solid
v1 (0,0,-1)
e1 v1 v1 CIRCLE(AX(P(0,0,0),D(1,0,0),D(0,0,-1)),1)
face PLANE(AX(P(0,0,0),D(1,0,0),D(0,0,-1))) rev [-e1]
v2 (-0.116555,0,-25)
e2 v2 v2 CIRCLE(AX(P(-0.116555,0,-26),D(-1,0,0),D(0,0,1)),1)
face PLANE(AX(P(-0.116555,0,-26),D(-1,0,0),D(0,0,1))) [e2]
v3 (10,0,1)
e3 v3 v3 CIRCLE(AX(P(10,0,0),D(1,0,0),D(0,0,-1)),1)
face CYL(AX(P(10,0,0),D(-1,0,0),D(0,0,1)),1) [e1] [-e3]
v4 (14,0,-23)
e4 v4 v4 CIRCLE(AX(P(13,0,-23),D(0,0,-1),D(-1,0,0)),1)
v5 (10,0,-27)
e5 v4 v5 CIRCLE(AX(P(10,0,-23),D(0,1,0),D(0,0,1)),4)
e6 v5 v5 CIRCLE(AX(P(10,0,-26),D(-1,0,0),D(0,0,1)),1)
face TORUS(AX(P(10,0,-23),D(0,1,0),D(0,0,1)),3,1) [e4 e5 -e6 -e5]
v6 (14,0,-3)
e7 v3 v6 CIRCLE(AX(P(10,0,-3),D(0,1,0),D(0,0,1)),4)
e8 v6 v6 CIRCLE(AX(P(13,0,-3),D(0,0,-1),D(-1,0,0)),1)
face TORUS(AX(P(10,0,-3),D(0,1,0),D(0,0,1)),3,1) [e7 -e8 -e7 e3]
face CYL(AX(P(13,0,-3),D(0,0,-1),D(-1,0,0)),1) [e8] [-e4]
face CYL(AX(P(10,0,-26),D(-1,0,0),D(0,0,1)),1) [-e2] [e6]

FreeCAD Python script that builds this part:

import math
import FreeCAD as App
import Part
import Sketcher
Q = App.Units.Quantity

doc = App.newDocument("Part")
params = doc.addObject("Spreadsheet::Sheet", "Params")
for row, (alias, value) in enumerate([
    ("sketch1_diameter", "2 mm"),
    ("sketch2_radius", "3 mm"),
    ("sketch2_width", "10 mm"),
    ("sketch2_height", "20 mm"),
], start=1):
    params.set(f"A{row}", alias)
    params.set(f"B{row}", "=" + value)
    params.setAlias(f"B{row}", alias)

body = doc.addObject("PartDesign::Body", "Body")

sketch1 = body.newObject("Sketcher::SketchObject", "Sketch")
sketch1.AttachmentSupport = (doc.getObject("YZ_Plane"), [""])
sketch1.MapMode = "FlatFace"
sketch1.addGeometry(Part.Circle(App.Vector(0, 0, 0), App.Vector(0, 0, 1), 1), False)
sketch1.addConstraint([
    Sketcher.Constraint("Coincident", 0, 3, -1, 1),
    Sketcher.Constraint("Diameter", 0, Q("2 mm")),
])
sketch1.setExpression("Constraints[1]", "Params.sketch1_diameter")

sketch2 = body.newObject("Sketcher::SketchObject", "Sketch001")
sketch2.AttachmentSupport = (doc.getObject("XZ_Plane"), [""])
sketch2.MapMode = "FlatFace"
sketch2.addGeometry([
    Part.LineSegment(App.Vector(0, 0, 0), App.Vector(10, 0, 0)),
    Part.ArcOfCircle(Part.Circle(App.Vector(10, -3, 0), App.Vector(0, 0, 1), 3), math.radians(0), math.radians(90)),
    Part.LineSegment(App.Vector(13, -3, 0), App.Vector(13, -23, 0)),
    Part.ArcOfCircle(Part.Circle(App.Vector(10, -23, 0), App.Vector(0, 0, 1), 3), math.radians(-90), math.radians(0)),
    Part.LineSegment(App.Vector(10, -26, 0), App.Vector(-0.1, -26, 0)),
], False)
sketch2.addConstraint([
    Sketcher.Constraint("Tangent", 0, 2, 1, 2),
    Sketcher.Constraint("Tangent", 1, 1, 2, 1),
    Sketcher.Constraint("Tangent", 2, 2, 3, 2),
    Sketcher.Constraint("Tangent", 3, 1, 4, 1),
    Sketcher.Constraint("Horizontal", 0),
    Sketcher.Constraint("Vertical", 2),
    Sketcher.Constraint("Horizontal", 4),
    Sketcher.Constraint("Coincident", 0, 1, -1, 1),
    Sketcher.Constraint("Equal", 1, 3),
    Sketcher.Constraint("Radius", 1, Q("3 mm")),
    Sketcher.Constraint("DistanceX", 0, 1, 0, 2, Q("10 mm")),
    Sketcher.Constraint("DistanceY", 2, 2, 2, 1, Q("20 mm")),
    Sketcher.Constraint("DistanceX", 4, 2, 4, 1, Q("10.116555 mm")),
])
sketch2.setExpression("Constraints[9]", "Params.sketch2_radius")
sketch2.setExpression("Constraints[10]", "Params.sketch2_width")
sketch2.setExpression("Constraints[11]", "Params.sketch2_height")
doc.recompute()

additivepipe = body.newObject("PartDesign::AdditivePipe", "AdditivePipe")
additivepipe.Profile = sketch1
additivepipe.Spine = (sketch2, ["Edge1", "Edge2", "Edge3", "Edge4", "Edge5"])

doc.recompute()
